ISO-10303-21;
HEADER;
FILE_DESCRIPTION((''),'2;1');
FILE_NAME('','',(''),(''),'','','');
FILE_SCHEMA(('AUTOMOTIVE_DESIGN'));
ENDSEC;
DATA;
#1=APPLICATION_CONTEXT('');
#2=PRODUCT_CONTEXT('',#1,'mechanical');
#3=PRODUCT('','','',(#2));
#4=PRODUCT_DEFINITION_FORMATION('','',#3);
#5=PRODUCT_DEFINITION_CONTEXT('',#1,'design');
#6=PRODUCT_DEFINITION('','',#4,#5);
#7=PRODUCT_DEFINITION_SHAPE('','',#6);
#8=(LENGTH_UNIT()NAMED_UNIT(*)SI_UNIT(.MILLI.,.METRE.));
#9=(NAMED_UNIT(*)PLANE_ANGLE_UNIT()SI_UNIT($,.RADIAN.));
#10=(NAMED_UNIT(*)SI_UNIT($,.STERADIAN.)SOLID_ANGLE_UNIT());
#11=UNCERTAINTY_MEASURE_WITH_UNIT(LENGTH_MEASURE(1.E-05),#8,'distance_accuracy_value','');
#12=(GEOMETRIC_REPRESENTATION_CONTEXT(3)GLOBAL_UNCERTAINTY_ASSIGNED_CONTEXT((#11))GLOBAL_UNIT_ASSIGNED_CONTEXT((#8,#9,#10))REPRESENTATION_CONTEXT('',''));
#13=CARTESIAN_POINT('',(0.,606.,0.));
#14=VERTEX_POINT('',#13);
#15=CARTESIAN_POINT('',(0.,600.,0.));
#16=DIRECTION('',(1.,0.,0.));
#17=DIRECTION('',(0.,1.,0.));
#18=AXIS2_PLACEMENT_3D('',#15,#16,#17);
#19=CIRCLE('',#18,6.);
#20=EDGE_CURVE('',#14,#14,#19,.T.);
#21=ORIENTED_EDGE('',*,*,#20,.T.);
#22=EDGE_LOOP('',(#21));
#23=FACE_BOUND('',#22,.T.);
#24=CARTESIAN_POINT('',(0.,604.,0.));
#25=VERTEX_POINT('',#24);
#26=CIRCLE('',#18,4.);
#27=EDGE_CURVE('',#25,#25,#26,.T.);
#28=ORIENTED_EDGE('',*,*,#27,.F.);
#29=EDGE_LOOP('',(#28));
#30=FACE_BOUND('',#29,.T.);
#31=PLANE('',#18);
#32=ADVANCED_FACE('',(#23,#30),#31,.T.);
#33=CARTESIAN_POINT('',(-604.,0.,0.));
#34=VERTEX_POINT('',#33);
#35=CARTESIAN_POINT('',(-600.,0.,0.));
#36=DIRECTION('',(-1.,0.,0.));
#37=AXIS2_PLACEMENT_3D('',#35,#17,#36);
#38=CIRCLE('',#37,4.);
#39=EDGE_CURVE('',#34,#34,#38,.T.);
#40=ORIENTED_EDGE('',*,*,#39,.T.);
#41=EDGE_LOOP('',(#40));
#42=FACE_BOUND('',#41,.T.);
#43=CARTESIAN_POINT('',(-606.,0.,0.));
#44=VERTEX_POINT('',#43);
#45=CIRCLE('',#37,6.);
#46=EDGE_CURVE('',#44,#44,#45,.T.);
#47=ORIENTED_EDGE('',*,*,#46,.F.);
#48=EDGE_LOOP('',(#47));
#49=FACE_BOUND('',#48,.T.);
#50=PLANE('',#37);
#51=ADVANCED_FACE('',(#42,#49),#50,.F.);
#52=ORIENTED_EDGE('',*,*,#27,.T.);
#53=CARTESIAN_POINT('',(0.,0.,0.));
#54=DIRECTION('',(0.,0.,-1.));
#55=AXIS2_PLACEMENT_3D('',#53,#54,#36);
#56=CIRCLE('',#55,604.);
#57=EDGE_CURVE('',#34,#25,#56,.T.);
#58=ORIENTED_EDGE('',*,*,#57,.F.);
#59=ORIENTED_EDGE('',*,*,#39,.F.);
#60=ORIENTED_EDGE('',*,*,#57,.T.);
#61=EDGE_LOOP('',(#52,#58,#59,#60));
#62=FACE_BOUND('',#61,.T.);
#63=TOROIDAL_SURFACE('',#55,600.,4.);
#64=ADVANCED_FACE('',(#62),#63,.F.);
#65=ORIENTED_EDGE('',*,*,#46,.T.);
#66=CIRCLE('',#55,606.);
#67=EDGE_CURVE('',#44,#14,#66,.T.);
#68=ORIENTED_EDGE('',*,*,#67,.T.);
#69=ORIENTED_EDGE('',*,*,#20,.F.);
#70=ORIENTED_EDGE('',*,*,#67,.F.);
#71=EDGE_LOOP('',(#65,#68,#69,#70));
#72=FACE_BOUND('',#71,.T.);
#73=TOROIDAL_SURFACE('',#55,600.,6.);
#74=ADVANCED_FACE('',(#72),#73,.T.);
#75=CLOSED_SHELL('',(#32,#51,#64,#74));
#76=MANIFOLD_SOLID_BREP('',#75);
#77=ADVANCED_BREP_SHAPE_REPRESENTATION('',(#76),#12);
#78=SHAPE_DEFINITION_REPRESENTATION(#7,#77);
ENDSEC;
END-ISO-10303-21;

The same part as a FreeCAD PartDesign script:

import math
import FreeCAD as App
import Part
import Sketcher
Q = App.Units.Quantity

doc = App.newDocument("Part")
body = doc.addObject("PartDesign::Body", "Body")

# Sketch on XZ plane
sketch1 = body.newObject("Sketcher::SketchObject", "Sketch")
sketch1.AttachmentSupport = (doc.getObject("XZ_Plane"), [""])
sketch1.MapMode = "FlatFace"
sketch1.addGeometry([
    Part.Circle(App.Vector(-600, 0, 0), App.Vector(0, 0, 1), 6),
    Part.Circle(App.Vector(-600, 0, 0), App.Vector(0, 0, 1), 4),
], False)
sketch1.addConstraint([
    Sketcher.Constraint("Coincident", 1, 3, 0, 3),
    Sketcher.Constraint("PointOnObject", 0, 3, -1),
    Sketcher.Constraint("Diameter", 0, Q("12 mm")),
    Sketcher.Constraint("Diameter", 1, Q("8 mm")),
    Sketcher.Constraint("DistanceX", 0, 3, -1, 1, Q("600 mm")),
])

# Sketch on XY plane
sketch2 = body.newObject("Sketcher::SketchObject", "Sketch001")
sketch2.AttachmentSupport = (doc.getObject("XY_Plane"), [""])
sketch2.MapMode = "FlatFace"
sketch2.addGeometry(Part.ArcOfCircle(Part.Circle(App.Vector(0, 0, 0), App.Vector(0, 0, 1), 600), math.radians(90), math.radians(180)), False)
sketch2.addConstraint([
    Sketcher.Constraint("Coincident", 0, 3, -1, 1),
    Sketcher.Constraint("PointOnObject", 0, 1, -2),
    Sketcher.Constraint("PointOnObject", 0, 2, -1),
    Sketcher.Constraint("Radius", 0, Q("600 mm")),
])
doc.recompute()

additivepipe = body.newObject("PartDesign::AdditivePipe", "AdditivePipe")
additivepipe.Profile = sketch1
additivepipe.Spine = (sketch2, ["Edge1"])

doc.recompute()
